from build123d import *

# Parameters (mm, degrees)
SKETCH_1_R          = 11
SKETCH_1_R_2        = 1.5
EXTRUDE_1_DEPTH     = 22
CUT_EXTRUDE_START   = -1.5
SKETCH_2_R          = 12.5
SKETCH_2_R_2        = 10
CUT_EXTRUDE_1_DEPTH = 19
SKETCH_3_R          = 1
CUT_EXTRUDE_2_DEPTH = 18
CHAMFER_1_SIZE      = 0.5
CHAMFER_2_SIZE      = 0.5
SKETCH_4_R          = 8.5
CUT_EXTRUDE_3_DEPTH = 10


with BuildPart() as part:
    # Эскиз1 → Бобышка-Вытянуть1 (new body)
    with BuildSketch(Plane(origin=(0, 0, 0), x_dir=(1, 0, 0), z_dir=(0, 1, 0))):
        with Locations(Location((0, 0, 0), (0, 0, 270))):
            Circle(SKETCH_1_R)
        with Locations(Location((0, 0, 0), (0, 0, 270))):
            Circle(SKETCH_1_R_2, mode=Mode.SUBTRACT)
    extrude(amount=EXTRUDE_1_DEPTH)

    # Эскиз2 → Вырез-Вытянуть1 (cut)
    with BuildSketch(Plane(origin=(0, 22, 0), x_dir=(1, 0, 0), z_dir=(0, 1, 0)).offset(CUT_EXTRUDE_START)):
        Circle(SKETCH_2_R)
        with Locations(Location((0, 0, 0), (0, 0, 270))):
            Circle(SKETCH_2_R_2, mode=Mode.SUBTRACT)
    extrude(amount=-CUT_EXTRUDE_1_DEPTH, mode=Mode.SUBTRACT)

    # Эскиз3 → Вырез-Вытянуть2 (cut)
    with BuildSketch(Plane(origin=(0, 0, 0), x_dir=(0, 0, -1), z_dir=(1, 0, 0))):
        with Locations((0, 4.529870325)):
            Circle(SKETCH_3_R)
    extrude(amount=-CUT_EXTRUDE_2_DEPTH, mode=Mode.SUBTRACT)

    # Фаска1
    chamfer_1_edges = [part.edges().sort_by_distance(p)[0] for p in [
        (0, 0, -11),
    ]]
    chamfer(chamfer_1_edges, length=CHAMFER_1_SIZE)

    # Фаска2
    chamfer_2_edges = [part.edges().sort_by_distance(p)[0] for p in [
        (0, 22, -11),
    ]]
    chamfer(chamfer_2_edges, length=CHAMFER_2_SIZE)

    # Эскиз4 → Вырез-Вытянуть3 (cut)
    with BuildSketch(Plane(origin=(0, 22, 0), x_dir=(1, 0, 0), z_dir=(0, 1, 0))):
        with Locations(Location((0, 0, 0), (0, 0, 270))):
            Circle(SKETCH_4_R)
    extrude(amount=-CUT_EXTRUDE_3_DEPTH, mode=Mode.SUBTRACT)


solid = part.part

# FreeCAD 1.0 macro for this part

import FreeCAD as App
import Part
import Sketcher

V = App.Vector


def edges_at(feature, points):
    """Names of the edges that pass closest to the given points."""
    edges = feature.Shape.Edges
    near = lambda p: min(range(len(edges)), key=lambda i: edges[i].distToShape(Part.Vertex(*p))[0])
    return sorted({f"Edge{near(p) + 1}" for p in points})

doc = App.newDocument("Part")
body = doc.addObject("PartDesign::Body", "Body")

# Sketch on XZ plane
sketch1 = body.newObject("Sketcher::SketchObject", "Sketch")
sketch1.AttachmentSupport = (doc.getObject("XZ_Plane"), [""])
sketch1.MapMode = "FlatFace"
sketch1.addGeometry(Part.Circle(V(0, 0, 0), V(0, 0, 1), 11), False)
sketch1.addGeometry(Part.Circle(V(0, 0, 0), V(0, 0, 1), 1.5), False)
sketch1.addConstraint(Sketcher.Constraint("Coincident", 0, 3, -1, 1))
sketch1.addConstraint(Sketcher.Constraint("Coincident", 1, 3, -1, 1))
sketch1.addConstraint(Sketcher.Constraint("Diameter", 0, 22.0))
sketch1.addConstraint(Sketcher.Constraint("Diameter", 1, 3.0))
pad1 = body.newObject("PartDesign::Pad", "Pad")
pad1.Profile = sketch1
pad1.Length = 22
pad1.Reversed = True

# Sketch on XZ plane
sketch2 = body.newObject("Sketcher::SketchObject", "Sketch001")
sketch2.AttachmentSupport = (doc.getObject("XZ_Plane"), [""])
sketch2.MapMode = "FlatFace"
sketch2.AttachmentOffset = App.Placement(V(0, 0, -20.5), App.Rotation())
sketch2.addGeometry(Part.Circle(V(0, 0, 0), V(0, 0, 1), 12), False)
sketch2.addGeometry(Part.Circle(V(0, 0, 0), V(0, 0, 1), 10), False)
sketch2.addConstraint(Sketcher.Constraint("Coincident", 0, 3, -1, 1))
sketch2.addConstraint(Sketcher.Constraint("Coincident", 1, 3, -1, 1))
sketch2.addConstraint(Sketcher.Constraint("Diameter", 0, 25.0))
sketch2.addConstraint(Sketcher.Constraint("Diameter", 1, 20.0))
pocket1 = body.newObject("PartDesign::Pocket", "Pocket")
pocket1.Profile = sketch2
pocket1.Length = 19
pocket1.Reversed = True

# Sketch on YZ plane
sketch3 = body.newObject("Sketcher::SketchObject", "Sketch002")
sketch3.AttachmentSupport = (doc.getObject("YZ_Plane"), [""])
sketch3.MapMode = "FlatFace"
sketch3.addGeometry(Part.Circle(V(4.5, 0, 0), V(0, 0, 1), 1), False)
sketch3.addConstraint(Sketcher.Constraint("PointOnObject", 0, 3, -1))
sketch3.addConstraint(Sketcher.Constraint("Diameter", 0, 2.0))
sketch3.addConstraint(Sketcher.Constraint("DistanceX", -1, 1, 0, 3, 4.52987))
pocket2 = body.newObject("PartDesign::Pocket", "Pocket001")
pocket2.Profile = sketch3
pocket2.Length = 18
doc.recompute()

chamfer = body.newObject("PartDesign::Chamfer", "Chamfer")
chamfer.Base = (pocket2, edges_at(pocket2, [(0, 0, -11)]))
chamfer.Size = 0.5
doc.recompute()

chamfer2 = body.newObject("PartDesign::Chamfer", "Chamfer001")
chamfer2.Base = (chamfer, edges_at(chamfer, [(0, 22, -11)]))
chamfer2.Size = 0.5

# Sketch on XZ plane
sketch4 = body.newObject("Sketcher::SketchObject", "Sketch003")
sketch4.AttachmentSupport = (doc.getObject("XZ_Plane"), [""])
sketch4.MapMode = "FlatFace"
sketch4.AttachmentOffset = App.Placement(V(0, 0, -22), App.Rotation())
sketch4.addGeometry(Part.Circle(V(0, 0, 0), V(0, 0, 1), 8), False)
sketch4.addConstraint(Sketcher.Constraint("Coincident", 0, 3, -1, 1))
sketch4.addConstraint(Sketcher.Constraint("Diameter", 0, 17.0))
pocket3 = body.newObject("PartDesign::Pocket", "Pocket002")
pocket3.Profile = sketch4
pocket3.Length = 10
pocket3.Reversed = True

doc.recompute()
